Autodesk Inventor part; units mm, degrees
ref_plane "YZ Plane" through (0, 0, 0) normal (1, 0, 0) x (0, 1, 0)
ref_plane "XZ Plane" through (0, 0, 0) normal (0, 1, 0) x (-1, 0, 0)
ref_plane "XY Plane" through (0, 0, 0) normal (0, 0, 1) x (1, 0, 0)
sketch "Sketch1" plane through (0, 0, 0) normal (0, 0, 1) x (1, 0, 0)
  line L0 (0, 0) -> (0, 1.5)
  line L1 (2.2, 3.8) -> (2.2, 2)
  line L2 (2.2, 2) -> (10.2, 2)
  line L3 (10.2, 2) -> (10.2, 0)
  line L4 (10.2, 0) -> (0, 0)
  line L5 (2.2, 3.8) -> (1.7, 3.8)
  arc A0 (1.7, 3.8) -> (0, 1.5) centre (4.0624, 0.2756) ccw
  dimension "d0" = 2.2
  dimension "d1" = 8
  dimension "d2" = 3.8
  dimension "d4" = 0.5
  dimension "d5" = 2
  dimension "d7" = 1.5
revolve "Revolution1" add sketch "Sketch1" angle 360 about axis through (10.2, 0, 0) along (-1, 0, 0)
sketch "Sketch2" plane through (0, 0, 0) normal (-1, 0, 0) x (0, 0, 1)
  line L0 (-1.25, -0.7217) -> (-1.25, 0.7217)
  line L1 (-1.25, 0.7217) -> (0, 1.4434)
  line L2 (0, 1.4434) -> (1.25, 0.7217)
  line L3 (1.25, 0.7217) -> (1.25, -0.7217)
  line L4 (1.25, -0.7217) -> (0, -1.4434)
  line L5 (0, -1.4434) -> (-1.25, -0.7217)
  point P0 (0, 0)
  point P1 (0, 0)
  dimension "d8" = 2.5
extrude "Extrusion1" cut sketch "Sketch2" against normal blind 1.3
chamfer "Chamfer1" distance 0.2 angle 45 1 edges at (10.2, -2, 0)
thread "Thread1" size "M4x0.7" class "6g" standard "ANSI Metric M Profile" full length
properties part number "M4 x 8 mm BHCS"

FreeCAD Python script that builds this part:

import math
import FreeCAD as App
import Part
import Sketcher

V = App.Vector
Q = App.Units.Quantity


def edges_at(feature, points):
    """Names of the edges that pass closest to the given points."""
    edges = feature.Shape.Edges
    near = lambda p: min(range(len(edges)), key=lambda i: edges[i].distToShape(Part.Vertex(*p))[0])
    return sorted({f"Edge{near(p) + 1}" for p in points})

doc = App.newDocument("Part")
body = doc.addObject("PartDesign::Body", "Body")

# Sketch on XY plane
sketch1 = body.newObject("Sketcher::SketchObject", "Sketch")
sketch1.AttachmentSupport = (doc.getObject("XY_Plane"), [""])
sketch1.MapMode = "FlatFace"
sketch1.addGeometry([
    Part.LineSegment(V(0, 1.5, 0), V(0, 0, 0)),  # 0
    Part.LineSegment(V(0, 0, 0), V(10.2, 0, 0)),  # 1
    Part.LineSegment(V(10.2, 0, 0), V(10.2, 2, 0)),  # 2
    Part.LineSegment(V(10.2, 2, 0), V(2.2, 2, 0)),  # 3
    Part.LineSegment(V(2.2, 2, 0), V(2.2, 3.8, 0)),  # 4
    Part.LineSegment(V(2.2, 3.8, 0), V(1.7, 3.8, 0)),  # 5
    Part.ArcOfCircle(Part.Circle(V(4.1, 0.3, 0), V(0, 0, 1), 4.2), math.radians(124), math.radians(163)),  # 6
], False)
sketch1.addConstraint([
    Sketcher.Constraint("Coincident", 0, 2, 1, 1),
    Sketcher.Constraint("Coincident", 1, 2, 2, 1),
    Sketcher.Constraint("Coincident", 2, 2, 3, 1),
    Sketcher.Constraint("Coincident", 3, 2, 4, 1),
    Sketcher.Constraint("Coincident", 4, 2, 5, 1),
    Sketcher.Constraint("Coincident", 5, 2, 6, 1),
    Sketcher.Constraint("Coincident", 6, 2, 0, 1),
    Sketcher.Constraint("Vertical", 0),
    Sketcher.Constraint("Horizontal", 1),
    Sketcher.Constraint("Vertical", 2),
    Sketcher.Constraint("Horizontal", 3),
    Sketcher.Constraint("Vertical", 4),
    Sketcher.Constraint("Horizontal", 5),
    Sketcher.Constraint("Coincident", 0, 2, -1, 1),
    Sketcher.Constraint("DistanceX", 3, 2, 3, 1, Q("8 mm")),
    Sketcher.Constraint("DistanceY", 2, 1, 2, 2, Q("2 mm")),
    Sketcher.Constraint("DistanceX", 5, 2, 5, 1, Q("0.5 mm")),
    Sketcher.Constraint("DistanceY", 0, 2, 0, 1, Q("1.5 mm")),
    Sketcher.Constraint("DistanceX", -1, 1, 3, 2, Q("2.2 mm")),
    Sketcher.Constraint("DistanceY", -1, 1, 4, 2, Q("3.8 mm")),
    Sketcher.Constraint("Radius", 6, Q("4.243 mm")),
])
revolution = body.newObject("PartDesign::Revolution", "Revolution")
revolution.Profile = sketch1
revolution.ReferenceAxis = (sketch1, ["H_Axis"])
revolution.Angle = 360

# Sketch on YZ plane
sketch2 = body.newObject("Sketcher::SketchObject", "Sketch001")
sketch2.AttachmentSupport = (doc.getObject("YZ_Plane"), [""])
sketch2.MapMode = "FlatFace"
sketch2.addGeometry([
    Part.LineSegment(V(0.7, -1.2, 0), V(-0.7, -1.2, 0)),  # 0
    Part.LineSegment(V(-0.7, -1.2, 0), V(-1.4, 0, 0)),  # 1
    Part.LineSegment(V(-1.4, 0, 0), V(-0.7, 1.2, 0)),  # 2
    Part.LineSegment(V(-0.7, 1.2, 0), V(0.7, 1.2, 0)),  # 3
    Part.LineSegment(V(0.7, 1.2, 0), V(1.4, 0, 0)),  # 4
    Part.LineSegment(V(1.4, 0, 0), V(0.7, -1.2, 0)),  # 5
], False)
sketch2.addConstraint([
    Sketcher.Constraint("Coincident", 0, 2, 1, 1),
    Sketcher.Constraint("Coincident", 1, 2, 2, 1),
    Sketcher.Constraint("Coincident", 2, 2, 3, 1),
    Sketcher.Constraint("Coincident", 3, 2, 4, 1),
    Sketcher.Constraint("Coincident", 4, 2, 5, 1),
    Sketcher.Constraint("Coincident", 5, 2, 0, 1),
    Sketcher.Constraint("Horizontal", 0),
    Sketcher.Constraint("Horizontal", 3),
    Sketcher.Constraint("Symmetric", 0, 2, 3, 2, -1, 1),
    Sketcher.Constraint("Symmetric", 1, 2, 4, 2, -1, 1),
    Sketcher.Constraint("PointOnObject", 1, 2, -1),
    Sketcher.Constraint("Parallel", 2, 5),
    Sketcher.Constraint("Vertical", 0, 2, 2, 2),
    Sketcher.Constraint("DistanceY", 0, 2, 2, 2, Q("2.5 mm")),
    Sketcher.Constraint("Angle", 1, Q("120.0004 deg")),
    Sketcher.Constraint("DistanceX", 0, 2, 0, 1, Q("1.4434 mm")),
])
pocket1 = body.newObject("PartDesign::Pocket", "Pocket")
pocket1.Profile = sketch2
pocket1.Length = 1.3
pocket1.Reversed = True
doc.recompute()

chamfer = body.newObject("PartDesign::Chamfer", "Chamfer")
chamfer.Base = (pocket1, edges_at(pocket1, [(10.2, -2, 0)]))
chamfer.Size = 0.2

doc.recompute()
